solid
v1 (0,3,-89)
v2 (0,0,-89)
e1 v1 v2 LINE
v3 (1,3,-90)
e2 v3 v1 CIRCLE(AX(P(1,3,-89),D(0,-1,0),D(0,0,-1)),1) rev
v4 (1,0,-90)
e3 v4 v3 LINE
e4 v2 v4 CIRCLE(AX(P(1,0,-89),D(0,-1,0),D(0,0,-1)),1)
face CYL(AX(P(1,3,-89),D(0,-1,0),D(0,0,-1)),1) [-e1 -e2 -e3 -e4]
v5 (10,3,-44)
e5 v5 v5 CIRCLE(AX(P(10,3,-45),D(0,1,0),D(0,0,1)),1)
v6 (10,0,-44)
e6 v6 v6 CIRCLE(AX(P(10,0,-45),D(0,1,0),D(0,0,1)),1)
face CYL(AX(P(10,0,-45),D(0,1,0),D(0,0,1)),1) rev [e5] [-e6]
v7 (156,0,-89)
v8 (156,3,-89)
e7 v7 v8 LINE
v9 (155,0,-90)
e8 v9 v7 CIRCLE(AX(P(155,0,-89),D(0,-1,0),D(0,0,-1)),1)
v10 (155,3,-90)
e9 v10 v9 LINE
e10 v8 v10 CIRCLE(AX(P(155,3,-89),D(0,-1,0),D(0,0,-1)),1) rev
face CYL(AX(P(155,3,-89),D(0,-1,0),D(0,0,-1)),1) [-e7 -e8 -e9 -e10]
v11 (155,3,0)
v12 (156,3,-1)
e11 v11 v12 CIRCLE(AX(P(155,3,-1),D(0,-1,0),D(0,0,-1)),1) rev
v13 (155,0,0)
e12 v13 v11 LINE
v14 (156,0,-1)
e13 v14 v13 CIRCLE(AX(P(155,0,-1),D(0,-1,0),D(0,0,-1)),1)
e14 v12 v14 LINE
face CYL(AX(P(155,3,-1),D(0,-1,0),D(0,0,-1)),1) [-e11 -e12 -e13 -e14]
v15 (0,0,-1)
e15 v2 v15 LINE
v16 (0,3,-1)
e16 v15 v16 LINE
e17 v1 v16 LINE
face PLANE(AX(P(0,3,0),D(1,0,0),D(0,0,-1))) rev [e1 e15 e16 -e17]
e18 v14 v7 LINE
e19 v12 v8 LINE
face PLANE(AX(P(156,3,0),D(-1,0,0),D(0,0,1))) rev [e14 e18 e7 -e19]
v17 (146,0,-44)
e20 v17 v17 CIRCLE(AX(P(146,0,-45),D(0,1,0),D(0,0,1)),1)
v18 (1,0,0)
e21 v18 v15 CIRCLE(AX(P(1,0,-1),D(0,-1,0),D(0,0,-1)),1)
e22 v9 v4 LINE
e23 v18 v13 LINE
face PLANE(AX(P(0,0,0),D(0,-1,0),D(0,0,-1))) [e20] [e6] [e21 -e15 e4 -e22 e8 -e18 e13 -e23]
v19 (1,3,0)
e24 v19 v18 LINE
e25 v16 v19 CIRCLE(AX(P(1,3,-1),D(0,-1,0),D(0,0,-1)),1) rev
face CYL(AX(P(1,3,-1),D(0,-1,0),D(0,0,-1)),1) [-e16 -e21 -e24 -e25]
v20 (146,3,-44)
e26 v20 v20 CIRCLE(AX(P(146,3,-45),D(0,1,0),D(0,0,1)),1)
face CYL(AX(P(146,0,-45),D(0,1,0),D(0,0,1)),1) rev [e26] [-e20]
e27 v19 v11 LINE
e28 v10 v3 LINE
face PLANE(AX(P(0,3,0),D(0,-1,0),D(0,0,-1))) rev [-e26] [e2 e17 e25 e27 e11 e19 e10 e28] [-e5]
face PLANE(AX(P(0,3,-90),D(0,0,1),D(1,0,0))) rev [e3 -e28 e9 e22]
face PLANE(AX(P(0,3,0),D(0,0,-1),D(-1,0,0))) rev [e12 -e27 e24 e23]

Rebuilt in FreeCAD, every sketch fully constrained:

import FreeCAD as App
import Part
import Sketcher
from FreeCAD import Vector
Q = App.Units.Quantity


def edges_at(feature, points):
    """Names of the edges that pass closest to the given points."""
    edges = feature.Shape.Edges
    near = lambda p: min(range(len(edges)), key=lambda i: edges[i].distToShape(Part.Vertex(*p))[0])
    return sorted({f"Edge{near(p) + 1}" for p in points})


def add_polygon(sketch, points):
    """Adds a closed chain of lines whose ends are joined by coincident constraints."""
    first, n = sketch.GeometryCount, len(points)
    for a, b in zip(points, points[1:] + points[:1]):
        sketch.addGeometry(Part.LineSegment(App.Vector(*a, 0), App.Vector(*b, 0)), False)
    for i in range(n):
        sketch.addConstraint(Sketcher.Constraint("Coincident", first + i, 2, first + (i + 1) % n, 1))

doc = App.newDocument("Part")
body = doc.addObject("PartDesign::Body", "Body")

sketch1 = body.newObject("Sketcher::SketchObject", "Sketch")
sketch1.AttachmentSupport = (doc.getObject("XZ_Plane"), [""])
sketch1.MapMode = "FlatFace"
add_polygon(sketch1, [(0, -90), (0, 0), (156, 0), (156, -90)])
sketch1.addConstraint([
    Sketcher.Constraint("Vertical", 0),
    Sketcher.Constraint("Horizontal", 1),
    Sketcher.Constraint("Vertical", 2),
    Sketcher.Constraint("Horizontal", 3),
    Sketcher.Constraint("Coincident", 0, 2, -1, 1),
    Sketcher.Constraint("DistanceX", 1, 1, 1, 2, Q("156 mm")),
    Sketcher.Constraint("DistanceY", 0, 1, 0, 2, Q("90 mm")),
])
pad1 = body.newObject("PartDesign::Pad", "Pad")
pad1.Profile = sketch1
pad1.Length = 3
pad1.Reversed = True
doc.recompute()

fillet = body.newObject("PartDesign::Fillet", "Fillet")
fillet.Base = (pad1, edges_at(pad1, [
    (0, 1.5, -90),
    (156, 1.5, -90),
    (156, 1.5, 0),
    (0, 1.5, 0),
]))
fillet.Radius = 1

sketch2 = body.newObject("Sketcher::SketchObject", "Sketch001")
sketch2.AttachmentSupport = (doc.getObject("XZ_Plane"), [""])
sketch2.MapMode = "FlatFace"
sketch2.AttachmentOffset = App.Placement(Vector(0, 0, -3), App.Rotation())
sketch2.addGeometry([
    Part.Circle(Vector(146, -45, 0), Vector(0, 0, 1), 1),
    Part.Circle(Vector(10, -45, 0), Vector(0, 0, 1), 1),
], False)
sketch2.addConstraint([
    Sketcher.Constraint("Equal", 0, 1),
    Sketcher.Constraint("Horizontal", 0, 3, 1, 3),
    Sketcher.Constraint("Diameter", 0, Q("2 mm")),
    Sketcher.Constraint("DistanceX", -1, 1, 0, 3, Q("146 mm")),
    Sketcher.Constraint("DistanceY", 0, 3, -1, 1, Q("45 mm")),
    Sketcher.Constraint("DistanceX", -1, 1, 1, 3, Q("10 mm")),
])
pocket1 = body.newObject("PartDesign::Pocket", "Pocket")
pocket1.Profile = sketch2
pocket1.Type = "ThroughAll"
pocket1.Reversed = True

doc.recompute()
